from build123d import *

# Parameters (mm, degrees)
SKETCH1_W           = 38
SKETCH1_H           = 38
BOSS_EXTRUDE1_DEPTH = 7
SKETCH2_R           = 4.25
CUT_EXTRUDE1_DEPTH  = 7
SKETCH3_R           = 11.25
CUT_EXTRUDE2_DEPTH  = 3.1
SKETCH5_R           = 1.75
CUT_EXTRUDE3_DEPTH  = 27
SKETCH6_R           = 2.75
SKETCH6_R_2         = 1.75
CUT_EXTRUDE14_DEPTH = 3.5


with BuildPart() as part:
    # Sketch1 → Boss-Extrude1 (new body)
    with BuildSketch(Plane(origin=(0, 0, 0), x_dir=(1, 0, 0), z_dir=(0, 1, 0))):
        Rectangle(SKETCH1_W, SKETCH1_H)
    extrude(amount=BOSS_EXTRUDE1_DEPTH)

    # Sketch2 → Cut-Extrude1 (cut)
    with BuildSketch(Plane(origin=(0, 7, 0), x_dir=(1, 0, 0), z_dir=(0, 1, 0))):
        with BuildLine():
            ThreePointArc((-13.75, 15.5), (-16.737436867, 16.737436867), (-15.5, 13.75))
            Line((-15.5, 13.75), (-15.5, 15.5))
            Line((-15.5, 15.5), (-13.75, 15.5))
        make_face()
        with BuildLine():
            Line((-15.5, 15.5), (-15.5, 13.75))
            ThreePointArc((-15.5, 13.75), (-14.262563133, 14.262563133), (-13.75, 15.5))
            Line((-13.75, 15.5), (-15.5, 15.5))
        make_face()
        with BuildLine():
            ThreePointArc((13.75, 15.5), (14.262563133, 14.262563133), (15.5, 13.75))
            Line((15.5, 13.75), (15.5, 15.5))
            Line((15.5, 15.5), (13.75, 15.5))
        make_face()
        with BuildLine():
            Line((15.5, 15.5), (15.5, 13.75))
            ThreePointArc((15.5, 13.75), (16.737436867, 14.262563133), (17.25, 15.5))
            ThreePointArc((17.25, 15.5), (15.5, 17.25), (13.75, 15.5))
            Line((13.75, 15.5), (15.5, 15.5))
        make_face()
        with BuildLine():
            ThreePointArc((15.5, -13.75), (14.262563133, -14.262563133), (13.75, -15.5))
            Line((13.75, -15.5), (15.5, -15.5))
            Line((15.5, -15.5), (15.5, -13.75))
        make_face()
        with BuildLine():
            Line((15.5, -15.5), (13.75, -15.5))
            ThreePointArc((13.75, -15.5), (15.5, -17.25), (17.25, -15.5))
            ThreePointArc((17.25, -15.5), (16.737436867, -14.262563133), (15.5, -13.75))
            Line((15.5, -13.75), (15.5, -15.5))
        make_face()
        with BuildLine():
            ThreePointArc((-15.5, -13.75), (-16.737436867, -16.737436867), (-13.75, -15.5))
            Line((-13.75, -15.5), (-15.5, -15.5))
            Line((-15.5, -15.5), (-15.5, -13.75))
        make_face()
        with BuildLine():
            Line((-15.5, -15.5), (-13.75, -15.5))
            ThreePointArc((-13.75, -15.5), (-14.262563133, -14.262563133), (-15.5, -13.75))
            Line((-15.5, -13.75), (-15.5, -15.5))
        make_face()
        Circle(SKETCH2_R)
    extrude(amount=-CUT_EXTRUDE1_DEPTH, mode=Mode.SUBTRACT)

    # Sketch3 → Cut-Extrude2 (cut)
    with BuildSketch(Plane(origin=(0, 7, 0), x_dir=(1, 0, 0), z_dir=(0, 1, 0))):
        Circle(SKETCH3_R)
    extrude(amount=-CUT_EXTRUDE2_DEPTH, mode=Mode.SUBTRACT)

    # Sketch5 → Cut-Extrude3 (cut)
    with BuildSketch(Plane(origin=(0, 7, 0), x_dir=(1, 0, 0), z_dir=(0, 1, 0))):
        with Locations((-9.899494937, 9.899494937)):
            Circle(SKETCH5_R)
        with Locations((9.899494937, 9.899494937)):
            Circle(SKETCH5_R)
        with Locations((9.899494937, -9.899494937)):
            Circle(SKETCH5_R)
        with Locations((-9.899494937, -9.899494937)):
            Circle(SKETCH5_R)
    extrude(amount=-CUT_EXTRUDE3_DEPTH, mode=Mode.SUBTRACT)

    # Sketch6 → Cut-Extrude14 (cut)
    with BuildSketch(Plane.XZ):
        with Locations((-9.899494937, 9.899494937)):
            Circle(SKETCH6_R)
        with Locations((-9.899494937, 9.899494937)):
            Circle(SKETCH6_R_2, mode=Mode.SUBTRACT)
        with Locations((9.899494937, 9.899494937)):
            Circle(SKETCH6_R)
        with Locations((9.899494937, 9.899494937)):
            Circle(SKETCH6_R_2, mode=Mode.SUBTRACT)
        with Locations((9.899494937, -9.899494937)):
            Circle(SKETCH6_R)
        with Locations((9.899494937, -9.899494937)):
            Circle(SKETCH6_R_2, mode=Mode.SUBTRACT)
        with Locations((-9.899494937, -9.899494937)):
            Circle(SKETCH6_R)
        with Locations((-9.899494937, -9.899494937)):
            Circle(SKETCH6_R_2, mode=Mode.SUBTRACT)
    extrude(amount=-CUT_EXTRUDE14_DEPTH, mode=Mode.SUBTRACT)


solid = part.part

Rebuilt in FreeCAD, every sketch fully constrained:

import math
import FreeCAD as App
import Part
import Sketcher


def add_polygon(sketch, points):
    """Adds a closed chain of lines whose ends are joined by coincident constraints."""
    first, n = sketch.GeometryCount, len(points)
    for a, b in zip(points, points[1:] + points[:1]):
        sketch.addGeometry(Part.LineSegment(App.Vector(*a, 0), App.Vector(*b, 0)), False)
    for i in range(n):
        sketch.addConstraint(Sketcher.Constraint("Coincident", first + i, 2, first + (i + 1) % n, 1))

doc = App.newDocument("Part")
body = doc.addObject("PartDesign::Body", "Body")

# Sketch on XZ plane
sketch1 = body.newObject("Sketcher::SketchObject", "Sketch")
sketch1.AttachmentSupport = (doc.getObject("XZ_Plane"), [""])
sketch1.MapMode = "FlatFace"
add_polygon(sketch1, [(-19, -19), (-19, 19), (19, 19), (19, -19)])  # lines 0-3
sketch1.addConstraint([
    Sketcher.Constraint("Vertical", 0),
    Sketcher.Constraint("Horizontal", 1),
    Sketcher.Constraint("Vertical", 2),
    Sketcher.Constraint("Horizontal", 3),
    Sketcher.Constraint("Symmetric", 0, 2, 2, 2, -1, 1),
    Sketcher.Constraint("Equal", 3, 0),
    Sketcher.Constraint("DistanceX", 1, 1, 1, 2, 38.0),
])
pad1 = body.newObject("PartDesign::Pad", "Pad")
pad1.Profile = sketch1
pad1.Length = 7
pad1.Reversed = True

# Sketch on XZ plane
sketch2 = body.newObject("Sketcher::SketchObject", "Sketch001")
sketch2.AttachmentSupport = (doc.getObject("XZ_Plane"), [""])
sketch2.MapMode = "FlatFace"
sketch2.AttachmentOffset = App.Placement(App.Vector(0, 0, -7), App.Rotation())
sketch2.addGeometry([
    Part.ArcOfCircle(Part.Circle(App.Vector(-15.5, -15.5, 0), App.Vector(0, 0, 1), 1.8), math.radians(90), math.radians(360)),  # 0
    Part.ArcOfCircle(Part.Circle(App.Vector(-15.5, -15.5, 0), App.Vector(0, 0, 1), 1.8), math.radians(0), math.radians(90)),  # 1
    Part.ArcOfCircle(Part.Circle(App.Vector(15.5, -15.5, 0), App.Vector(0, 0, 1), 1.8), math.radians(90), math.radians(180)),  # 2
    Part.ArcOfCircle(Part.Circle(App.Vector(15.5, -15.5, 0), App.Vector(0, 0, 1), 1.8), math.radians(0), math.radians(90)),  # 3
    Part.ArcOfCircle(Part.Circle(App.Vector(15.5, -15.5, 0), App.Vector(0, 0, 1), 1.8), math.radians(180), math.radians(360)),  # 4
    Part.ArcOfCircle(Part.Circle(App.Vector(15.5, 15.5, 0), App.Vector(0, 0, 1), 1.8), math.radians(180), math.radians(270)),  # 5
    Part.ArcOfCircle(Part.Circle(App.Vector(15.5, 15.5, 0), App.Vector(0, 0, 1), 1.8), math.radians(0), math.radians(180)),  # 6
    Part.ArcOfCircle(Part.Circle(App.Vector(15.5, 15.5, 0), App.Vector(0, 0, 1), 1.8), math.radians(-90), math.radians(0)),  # 7
    Part.ArcOfCircle(Part.Circle(App.Vector(-15.5, 15.5, 0), App.Vector(0, 0, 1), 1.8), math.radians(0), math.radians(270)),  # 8
    Part.ArcOfCircle(Part.Circle(App.Vector(-15.5, 15.5, 0), App.Vector(0, 0, 1), 1.8), math.radians(-90), math.radians(0)),  # 9
    Part.Circle(App.Vector(0, 0, 0), App.Vector(0, 0, 1), 4.2),  # 10
], False)
sketch2.addConstraint([
    Sketcher.Constraint("Tangent", 0, 1, 1, 2),
    Sketcher.Constraint("Coincident", 1, 1, 0, 2),
    Sketcher.Constraint("Tangent", 2, 1, 3, 2),
    Sketcher.Constraint("Tangent", 3, 1, 4, 2),
    Sketcher.Constraint("Tangent", 4, 1, 2, 2),
    Sketcher.Constraint("Tangent", 5, 1, 6, 2),
    Sketcher.Constraint("Tangent", 6, 1, 7, 2),
    Sketcher.Constraint("Tangent", 7, 1, 5, 2),
    Sketcher.Constraint("Tangent", 8, 1, 9, 2),
    Sketcher.Constraint("Coincident", 9, 1, 8, 2),
    Sketcher.Constraint("Coincident", 10, 3, -1, 1),
    Sketcher.Constraint("Equal", 1, 2),
    Sketcher.Constraint("Equal", 4, 5),
    Sketcher.Constraint("Equal", 7, 8),
    Sketcher.Constraint("Symmetric", 0, 3, 5, 3, -1, 1),
    Sketcher.Constraint("Symmetric", 2, 3, 8, 3, -1, 1),
    Sketcher.Constraint("Symmetric", 0, 3, 2, 3, -2),
    Sketcher.Constraint("Horizontal", 4, 3, 1, 1),
    Sketcher.Constraint("Horizontal", 1, 1, 3, 1),
    Sketcher.Constraint("Horizontal", 3, 1, 4, 1),
    Sketcher.Constraint("Horizontal", 9, 3, 5, 1),
    Sketcher.Constraint("Horizontal", 5, 1, 6, 1),
    Sketcher.Constraint("Horizontal", 6, 1, 8, 1),
    Sketcher.Constraint("Vertical", 9, 3, 0, 1),
    Sketcher.Constraint("Vertical", 7, 3, 2, 1),
    Sketcher.Constraint("Vertical", 2, 1, 7, 1),
    Sketcher.Constraint("Vertical", 0, 1, 9, 1),
    Sketcher.Constraint("Diameter", 10, 8.5),
    Sketcher.Constraint("Radius", 0, 1.75),
    Sketcher.Constraint("DistanceX", 0, 3, 2, 3, 31.0),
    Sketcher.Constraint("DistanceY", 2, 3, 5, 3, 31.0),
])
pocket1 = body.newObject("PartDesign::Pocket", "Pocket")
pocket1.Profile = sketch2
pocket1.Length = 7
pocket1.Reversed = True

# Sketch on XZ plane
sketch3 = body.newObject("Sketcher::SketchObject", "Sketch002")
sketch3.AttachmentSupport = (doc.getObject("XZ_Plane"), [""])
sketch3.MapMode = "FlatFace"
sketch3.AttachmentOffset = App.Placement(App.Vector(0, 0, -7), App.Rotation())
sketch3.addGeometry(Part.Circle(App.Vector(0, 0, 0), App.Vector(0, 0, 1), 11), False)
sketch3.addConstraint([
    Sketcher.Constraint("Coincident", 0, 3, -1, 1),
    Sketcher.Constraint("Diameter", 0, 22.5),
])
pocket2 = body.newObject("PartDesign::Pocket", "Pocket001")
pocket2.Profile = sketch3
pocket2.Length = 3.1
pocket2.Reversed = True

# Sketch on XZ plane
sketch4 = body.newObject("Sketcher::SketchObject", "Sketch003")
sketch4.AttachmentSupport = (doc.getObject("XZ_Plane"), [""])
sketch4.MapMode = "FlatFace"
sketch4.AttachmentOffset = App.Placement(App.Vector(0, 0, -7), App.Rotation())
sketch4.addGeometry([
    Part.Circle(App.Vector(-9.9, -9.9, 0), App.Vector(0, 0, 1), 1.8),
    Part.Circle(App.Vector(9.9, -9.9, 0), App.Vector(0, 0, 1), 1.8),
    Part.Circle(App.Vector(9.9, 9.9, 0), App.Vector(0, 0, 1), 1.8),
    Part.Circle(App.Vector(-9.9, 9.9, 0), App.Vector(0, 0, 1), 1.8),
], False)
sketch4.addConstraint([
    Sketcher.Constraint("Equal", 0, 1),
    Sketcher.Constraint("Equal", 1, 2),
    Sketcher.Constraint("Equal", 2, 3),
    Sketcher.Constraint("Symmetric", 0, 3, 2, 3, -1, 1),
    Sketcher.Constraint("Symmetric", 1, 3, 3, 3, -1, 1),
    Sketcher.Constraint("Symmetric", 0, 3, 1, 3, -2),
    Sketcher.Constraint("Diameter", 0, 3.5),
    Sketcher.Constraint("DistanceX", 0, 3, 1, 3, 19.79899),
    Sketcher.Constraint("DistanceY", 1, 3, 2, 3, 19.79899),
])
pocket3 = body.newObject("PartDesign::Pocket", "Pocket002")
pocket3.Profile = sketch4
pocket3.Length = 27
pocket3.Reversed = True

# Sketch on XZ plane
sketch5 = body.newObject("Sketcher::SketchObject", "Sketch004")
sketch5.AttachmentSupport = (doc.getObject("XZ_Plane"), [""])
sketch5.MapMode = "FlatFace"
sketch5.addGeometry([
    Part.Circle(App.Vector(-9.9, 9.9, 0), App.Vector(0, 0, 1), 2.8),  # 0
    Part.Circle(App.Vector(-9.9, 9.9, 0), App.Vector(0, 0, 1), 1.8),  # 1
    Part.Circle(App.Vector(9.9, 9.9, 0), App.Vector(0, 0, 1), 2.8),  # 2
    Part.Circle(App.Vector(9.9, 9.9, 0), App.Vector(0, 0, 1), 1.8),  # 3
    Part.Circle(App.Vector(9.9, -9.9, 0), App.Vector(0, 0, 1), 2.8),  # 4
    Part.Circle(App.Vector(9.9, -9.9, 0), App.Vector(0, 0, 1), 1.8),  # 5
    Part.Circle(App.Vector(-9.9, -9.9, 0), App.Vector(0, 0, 1), 2.8),  # 6
    Part.Circle(App.Vector(-9.9, -9.9, 0), App.Vector(0, 0, 1), 1.8),  # 7
], False)
sketch5.addConstraint([
    Sketcher.Constraint("Coincident", 1, 3, 0, 3),
    Sketcher.Constraint("Coincident", 3, 3, 2, 3),
    Sketcher.Constraint("Coincident", 5, 3, 4, 3),
    Sketcher.Constraint("Coincident", 7, 3, 6, 3),
    Sketcher.Constraint("Equal", 0, 2),
    Sketcher.Constraint("Equal", 1, 3),
    Sketcher.Constraint("Equal", 2, 4),
    Sketcher.Constraint("Equal", 3, 5),
    Sketcher.Constraint("Equal", 4, 6),
    Sketcher.Constraint("Equal", 5, 7),
    Sketcher.Constraint("Symmetric", 0, 3, 4, 3, -1, 1),
    Sketcher.Constraint("Symmetric", 2, 3, 6, 3, -1, 1),
    Sketcher.Constraint("Symmetric", 0, 3, 2, 3, -2),
    Sketcher.Constraint("Diameter", 0, 5.5),
    Sketcher.Constraint("Diameter", 1, 3.5),
    Sketcher.Constraint("DistanceX", 0, 3, 2, 3, 19.79899),
    Sketcher.Constraint("DistanceY", 4, 3, 2, 3, 19.79899),
])
pocket4 = body.newObject("PartDesign::Pocket", "Pocket003")
pocket4.Profile = sketch5
pocket4.Length = 3.5

doc.recompute()
